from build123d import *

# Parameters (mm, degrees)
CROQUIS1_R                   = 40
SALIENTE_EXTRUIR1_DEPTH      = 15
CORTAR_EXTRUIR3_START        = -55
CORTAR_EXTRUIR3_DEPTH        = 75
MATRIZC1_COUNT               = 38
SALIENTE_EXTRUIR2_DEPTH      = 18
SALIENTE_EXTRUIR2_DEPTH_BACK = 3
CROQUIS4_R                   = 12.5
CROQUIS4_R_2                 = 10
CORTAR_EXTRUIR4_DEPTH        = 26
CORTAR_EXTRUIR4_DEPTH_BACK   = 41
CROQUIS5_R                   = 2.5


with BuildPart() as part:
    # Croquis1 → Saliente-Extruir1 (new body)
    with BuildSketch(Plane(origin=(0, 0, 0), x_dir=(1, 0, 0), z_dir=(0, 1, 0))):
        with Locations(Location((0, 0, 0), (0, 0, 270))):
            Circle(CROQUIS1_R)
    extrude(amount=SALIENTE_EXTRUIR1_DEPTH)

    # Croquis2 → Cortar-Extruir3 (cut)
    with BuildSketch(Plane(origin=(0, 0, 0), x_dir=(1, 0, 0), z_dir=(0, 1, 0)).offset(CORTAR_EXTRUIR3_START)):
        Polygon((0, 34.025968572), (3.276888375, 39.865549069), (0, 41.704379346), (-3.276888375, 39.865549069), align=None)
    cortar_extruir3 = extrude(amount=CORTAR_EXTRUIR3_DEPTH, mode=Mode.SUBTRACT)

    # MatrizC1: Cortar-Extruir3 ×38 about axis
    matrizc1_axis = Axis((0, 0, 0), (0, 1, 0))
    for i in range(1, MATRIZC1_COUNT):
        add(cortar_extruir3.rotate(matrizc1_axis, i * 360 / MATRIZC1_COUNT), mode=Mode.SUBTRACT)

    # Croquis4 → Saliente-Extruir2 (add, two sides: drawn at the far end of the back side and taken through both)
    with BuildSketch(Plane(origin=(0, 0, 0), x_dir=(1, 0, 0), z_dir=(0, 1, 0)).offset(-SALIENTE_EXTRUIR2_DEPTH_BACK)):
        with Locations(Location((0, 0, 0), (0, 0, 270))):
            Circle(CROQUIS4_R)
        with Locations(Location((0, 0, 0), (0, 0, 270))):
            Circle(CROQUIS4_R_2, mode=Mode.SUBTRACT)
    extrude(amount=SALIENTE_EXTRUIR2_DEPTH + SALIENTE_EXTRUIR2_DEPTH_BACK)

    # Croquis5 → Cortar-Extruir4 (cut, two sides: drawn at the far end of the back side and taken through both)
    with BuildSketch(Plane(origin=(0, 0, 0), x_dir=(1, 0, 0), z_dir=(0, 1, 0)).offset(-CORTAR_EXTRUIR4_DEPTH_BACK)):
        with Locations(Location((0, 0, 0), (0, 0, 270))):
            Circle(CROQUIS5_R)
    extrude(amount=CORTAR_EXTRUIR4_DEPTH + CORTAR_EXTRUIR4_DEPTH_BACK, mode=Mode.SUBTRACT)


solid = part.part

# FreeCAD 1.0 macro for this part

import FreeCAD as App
import Part
import Sketcher

V = App.Vector

doc = App.newDocument("Part")
body = doc.addObject("PartDesign::Body", "Body")

# Sketch on XZ plane
sketch1 = body.newObject("Sketcher::SketchObject", "Sketch")
sketch1.AttachmentSupport = (doc.getObject("XZ_Plane"), [""])
sketch1.MapMode = "FlatFace"
sketch1.addGeometry(Part.Circle(V(0, 0, 0), V(0, 0, 1), 40), False)
sketch1.addConstraint([
    Sketcher.Constraint("Coincident", 0, 3, -1, 1),
    Sketcher.Constraint("Diameter", 0, 80.0),
])
pad1 = body.newObject("PartDesign::Pad", "Pad")
pad1.Profile = sketch1
pad1.Length = 15
pad1.Reversed = True

# Sketch on XZ plane
sketch2 = body.newObject("Sketcher::SketchObject", "Sketch001")
sketch2.AttachmentSupport = (doc.getObject("XZ_Plane"), [""])
sketch2.MapMode = "FlatFace"
sketch2.AttachmentOffset = App.Placement(V(0, 0, 55), App.Rotation())
sketch2.addGeometry([
    Part.LineSegment(V(0, -34, 0), V(3.3, -39.9, 0)),
    Part.LineSegment(V(3.3, -39.9, 0), V(0, -41.7, 0)),
    Part.LineSegment(V(0, -41.7, 0), V(-3.3, -39.9, 0)),
    Part.LineSegment(V(-3.3, -39.9, 0), V(0, -34, 0)),
], False)
sketch2.addConstraint([
    Sketcher.Constraint("Coincident", 0, 2, 1, 1),
    Sketcher.Constraint("Coincident", 1, 2, 2, 1),
    Sketcher.Constraint("Coincident", 2, 2, 3, 1),
    Sketcher.Constraint("Coincident", 3, 2, 0, 1),
    Sketcher.Constraint("Symmetric", 0, 2, 2, 2, -2),
    Sketcher.Constraint("PointOnObject", 1, 2, -2),
    Sketcher.Constraint("PointOnObject", 3, 2, -2),
    Sketcher.Constraint("Perpendicular", 0, 1),
    Sketcher.Constraint("Distance", 0, 6.69617),
    Sketcher.Constraint("DistanceX", -1, 1, 0, 2, 3.276888),
    Sketcher.Constraint("DistanceY", 0, 2, -1, 1, 39.865549),
])
pocket1 = body.newObject("PartDesign::Pocket", "Pocket")
pocket1.Profile = sketch2
pocket1.Length = 75
doc.recompute()

polarpattern = body.newObject("PartDesign::PolarPattern", "PolarPattern")
polarpattern.Originals = [pocket1]
polarpattern.Axis = (doc.getObject("Y_Axis"), [""])
polarpattern.Angle = 360
polarpattern.Occurrences = 38
body.Tip = polarpattern

# Sketch on XZ plane
sketch3 = body.newObject("Sketcher::SketchObject", "Sketch002")
sketch3.AttachmentSupport = (doc.getObject("XZ_Plane"), [""])
sketch3.MapMode = "FlatFace"
sketch3.addGeometry([
    Part.Circle(V(0, 0, 0), V(0, 0, 1), 12),
    Part.Circle(V(0, 0, 0), V(0, 0, 1), 10),
], False)
sketch3.addConstraint([
    Sketcher.Constraint("Coincident", 0, 3, -1, 1),
    Sketcher.Constraint("Coincident", 1, 3, -1, 1),
    Sketcher.Constraint("Diameter", 0, 25.0),
    Sketcher.Constraint("Diameter", 1, 20.0),
])
pad2 = body.newObject("PartDesign::Pad", "Pad001")
pad2.Profile = sketch3
pad2.Type = "TwoLengths"
pad2.Length = 18
pad2.Length2 = 3
pad2.Reversed = True

# Sketch on XZ plane
sketch4 = body.newObject("Sketcher::SketchObject", "Sketch003")
sketch4.AttachmentSupport = (doc.getObject("XZ_Plane"), [""])
sketch4.MapMode = "FlatFace"
sketch4.addGeometry(Part.Circle(V(0, 0, 0), V(0, 0, 1), 2.5), False)
sketch4.addConstraint([
    Sketcher.Constraint("Coincident", 0, 3, -1, 1),
    Sketcher.Constraint("Diameter", 0, 5.0),
])
pocket2 = body.newObject("PartDesign::Pocket", "Pocket001")
pocket2.Profile = sketch4
pocket2.Type = "ThroughAll"
pocket2.Midplane = True

doc.recompute()
